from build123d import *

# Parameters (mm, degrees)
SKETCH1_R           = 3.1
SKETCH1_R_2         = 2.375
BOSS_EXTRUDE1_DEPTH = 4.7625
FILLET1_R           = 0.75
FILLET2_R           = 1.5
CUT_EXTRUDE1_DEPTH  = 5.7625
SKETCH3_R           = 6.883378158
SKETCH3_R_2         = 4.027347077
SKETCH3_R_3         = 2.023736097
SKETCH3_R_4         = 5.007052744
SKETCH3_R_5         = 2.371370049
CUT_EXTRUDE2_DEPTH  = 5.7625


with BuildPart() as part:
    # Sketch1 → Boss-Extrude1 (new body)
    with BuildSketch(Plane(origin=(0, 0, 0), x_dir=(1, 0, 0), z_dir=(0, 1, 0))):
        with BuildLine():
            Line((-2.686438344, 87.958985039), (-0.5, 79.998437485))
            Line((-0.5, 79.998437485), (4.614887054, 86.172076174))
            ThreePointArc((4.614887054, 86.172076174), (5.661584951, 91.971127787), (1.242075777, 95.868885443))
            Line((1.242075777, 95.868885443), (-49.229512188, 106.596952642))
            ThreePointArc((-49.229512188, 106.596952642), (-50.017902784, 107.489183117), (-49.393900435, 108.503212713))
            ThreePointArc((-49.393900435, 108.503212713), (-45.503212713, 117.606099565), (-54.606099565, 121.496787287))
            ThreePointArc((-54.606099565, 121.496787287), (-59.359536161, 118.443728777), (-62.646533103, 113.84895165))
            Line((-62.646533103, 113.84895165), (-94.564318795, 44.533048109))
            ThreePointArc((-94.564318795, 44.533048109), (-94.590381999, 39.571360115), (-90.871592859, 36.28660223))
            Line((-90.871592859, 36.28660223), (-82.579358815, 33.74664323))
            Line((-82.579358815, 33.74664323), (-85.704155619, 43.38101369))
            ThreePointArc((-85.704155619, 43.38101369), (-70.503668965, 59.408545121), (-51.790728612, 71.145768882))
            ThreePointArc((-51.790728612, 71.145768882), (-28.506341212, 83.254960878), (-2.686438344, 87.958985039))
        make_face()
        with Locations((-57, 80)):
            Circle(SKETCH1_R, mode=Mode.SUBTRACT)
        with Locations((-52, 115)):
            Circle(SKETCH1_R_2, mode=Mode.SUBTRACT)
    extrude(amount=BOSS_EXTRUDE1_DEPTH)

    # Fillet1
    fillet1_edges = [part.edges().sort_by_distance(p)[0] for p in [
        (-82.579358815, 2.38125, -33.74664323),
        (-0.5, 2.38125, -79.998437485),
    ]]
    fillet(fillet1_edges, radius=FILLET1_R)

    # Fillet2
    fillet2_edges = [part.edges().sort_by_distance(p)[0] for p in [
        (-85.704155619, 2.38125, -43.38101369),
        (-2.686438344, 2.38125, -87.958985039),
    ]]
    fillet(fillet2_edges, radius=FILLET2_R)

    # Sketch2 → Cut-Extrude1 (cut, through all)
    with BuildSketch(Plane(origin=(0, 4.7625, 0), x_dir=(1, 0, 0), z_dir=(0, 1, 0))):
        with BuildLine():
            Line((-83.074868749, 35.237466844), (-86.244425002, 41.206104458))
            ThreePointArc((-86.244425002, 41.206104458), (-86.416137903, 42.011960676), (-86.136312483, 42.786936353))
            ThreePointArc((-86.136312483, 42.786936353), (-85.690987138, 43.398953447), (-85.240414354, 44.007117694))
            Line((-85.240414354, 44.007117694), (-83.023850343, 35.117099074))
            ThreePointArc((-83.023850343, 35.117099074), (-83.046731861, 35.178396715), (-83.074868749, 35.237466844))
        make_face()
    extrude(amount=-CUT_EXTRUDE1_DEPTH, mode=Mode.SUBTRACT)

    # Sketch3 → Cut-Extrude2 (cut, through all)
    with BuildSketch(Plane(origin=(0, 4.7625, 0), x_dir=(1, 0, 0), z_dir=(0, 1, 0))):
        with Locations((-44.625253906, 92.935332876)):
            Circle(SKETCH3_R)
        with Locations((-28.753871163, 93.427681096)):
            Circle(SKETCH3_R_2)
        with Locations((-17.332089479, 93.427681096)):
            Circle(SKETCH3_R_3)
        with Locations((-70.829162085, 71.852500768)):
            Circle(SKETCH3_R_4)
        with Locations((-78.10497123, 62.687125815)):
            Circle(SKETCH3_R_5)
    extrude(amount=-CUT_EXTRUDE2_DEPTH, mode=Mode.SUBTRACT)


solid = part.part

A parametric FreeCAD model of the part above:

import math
import FreeCAD as App
import Part
import Sketcher
Q = App.Units.Quantity


def edges_at(feature, points):
    """Names of the edges that pass closest to the given points."""
    edges = feature.Shape.Edges
    near = lambda p: min(range(len(edges)), key=lambda i: edges[i].distToShape(Part.Vertex(*p))[0])
    return sorted({f"Edge{near(p) + 1}" for p in points})

doc = App.newDocument("Part")
params = doc.addObject("Spreadsheet::Sheet", "Params")
for row, (alias, value) in enumerate([
    ("sketch1_radius", "6 mm"),
    ("sketch1_radius2", "1 mm"),
    ("sketch1_radius3", "7 mm"),
    ("sketch1_radius4", "88 mm"),
    ("sketch1_diameter", "6.2 mm"),
    ("pad1_length", "4.7625 mm"),
    ("fillet_radius", "0.75 mm"),
    ("fillet2_radius", "1.5 mm"),
    ("sketch2_radius", "1.5 mm"),
    ("sketch2_radius2", "0.75 mm"),
], start=1):
    params.set(f"A{row}", alias)
    params.set(f"B{row}", "=" + value)
    params.setAlias(f"B{row}", alias)

body = doc.addObject("PartDesign::Body", "Body")

# Sketch on XZ plane
sketch1 = body.newObject("Sketcher::SketchObject", "Sketch")
sketch1.AttachmentSupport = (doc.getObject("XZ_Plane"), [""])
sketch1.MapMode = "FlatFace"
sketch1.addGeometry([
    Part.LineSegment(App.Vector(-2.686438, -87.958985, 0), App.Vector(-0.5, -79.998437, 0)),  # 0
    Part.LineSegment(App.Vector(-0.5, -79.998437, 0), App.Vector(4.614887, -86.172076, 0)),  # 1
    Part.ArcOfCircle(Part.Circle(App.Vector(-0.005394, -90, 0), App.Vector(0, 0, 1), 6), math.radians(-78), math.radians(39.641899)),  # 2
    Part.LineSegment(App.Vector(1.242076, -95.868885, 0), App.Vector(-49.229512, -106.596953, 0)),  # 3
    Part.ArcOfCircle(Part.Circle(App.Vector(-49.0216, -107.5751, 0), App.Vector(0, 0, 1), 1), math.radians(102), math.radians(248.142469)),  # 4
    Part.ArcOfCircle(Part.Circle(App.Vector(-52, -115, 0), App.Vector(0, 0, 1), 7), math.radians(-111.857531), math.radians(68.142469)),  # 5
    Part.ArcOfCircle(Part.Circle(App.Vector(-49.0216, -107.5751, 0), App.Vector(0, 0, 1), 15), math.radians(-155.275422), math.radians(-111.857531)),  # 6
    Part.LineSegment(App.Vector(-62.646533, -113.848952, 0), App.Vector(-94.564319, -44.533048, 0)),  # 7
    Part.ArcOfCircle(Part.Circle(App.Vector(-89.114346, -42.023508, 0), App.Vector(0, 0, 1), 6), math.radians(107.030128), math.radians(204.724578)),  # 8
    Part.LineSegment(App.Vector(-90.871593, -36.286602, 0), App.Vector(-82.579359, -33.746643, 0)),  # 9
    Part.LineSegment(App.Vector(-82.579359, -33.746643, 0), App.Vector(-85.704156, -43.381014, 0)),  # 10
    Part.ArcOfCircle(Part.Circle(App.Vector(-14.757812, 8.682566, 0), App.Vector(0, 0, 1), 88), math.radians(-143.727123), math.radians(-114.886911)),  # 11
    Part.ArcOfCircle(Part.Circle(App.Vector(0, 0, 0), App.Vector(0, 0, 1), 88), math.radians(-126.052833), math.radians(-91.749381)),  # 12
    Part.Circle(App.Vector(-57, -80, 0), App.Vector(0, 0, 1), 3.1),  # 13
    Part.Circle(App.Vector(-52, -115, 0), App.Vector(0, 0, 1), 2.375),  # 14
], False)
sketch1.addConstraint([
    Sketcher.Constraint("Coincident", 0, 2, 1, 1),
    Sketcher.Constraint("Tangent", 1, 2, 2, 2),
    Sketcher.Constraint("Tangent", 2, 1, 3, 1),
    Sketcher.Constraint("Tangent", 3, 2, 4, 1),
    Sketcher.Constraint("Tangent", 4, 2, 5, 2),
    Sketcher.Constraint("Tangent", 5, 1, 6, 2),
    Sketcher.Constraint("Tangent", 6, 1, 7, 1),
    Sketcher.Constraint("Tangent", 7, 2, 8, 2),
    Sketcher.Constraint("Tangent", 8, 1, 9, 1),
    Sketcher.Constraint("Coincident", 9, 2, 10, 1),
    Sketcher.Constraint("Coincident", 10, 2, 11, 1),
    Sketcher.Constraint("Coincident", 11, 2, 12, 1),
    Sketcher.Constraint("Coincident", 12, 2, 0, 1),
    Sketcher.Constraint("Coincident", 12, 3, -1, 1),
    Sketcher.Constraint("Coincident", 6, 3, 4, 3),
    Sketcher.Constraint("Coincident", 14, 3, 5, 3),
    Sketcher.Constraint("Equal", 2, 8),
    Sketcher.Constraint("Equal", 11, 12),
    Sketcher.Constraint("Radius", 2, Q("6 mm")),
    Sketcher.Constraint("Radius", 4, Q("1 mm")),
    Sketcher.Constraint("Radius", 5, Q("7 mm")),
    Sketcher.Constraint("Radius", 11, Q("88 mm")),
    Sketcher.Constraint("Diameter", 13, Q("6.2 mm")),
    Sketcher.Constraint("Diameter", 14, Q("4.75 mm")),
    Sketcher.Constraint("Angle", 3, Q("-168 deg")),
    Sketcher.Constraint("DistanceY", 2, 3, -1, 1, Q("90 mm")),
    Sketcher.Constraint("DistanceX", 5, 3, -1, 1, Q("52 mm")),
    Sketcher.Constraint("DistanceY", 5, 3, -1, 1, Q("115 mm")),
    Sketcher.Constraint("DistanceX", 13, 3, -1, 1, Q("57 mm")),
    Sketcher.Constraint("DistanceY", 13, 3, -1, 1, Q("80 mm")),
    Sketcher.Constraint("DistanceX", 0, 2, -1, 1, Q("0.5 mm")),
    Sketcher.Constraint("DistanceX", 4, 3, -1, 1, Q("49.0216 mm")),
    Sketcher.Constraint("DistanceY", 2, 1, 12, 2, Q("7.9099 mm")),
    Sketcher.Constraint("Distance", 0, Q("8.255352 mm")),
    Sketcher.Constraint("DistanceY", 6, 1, -1, 1, Q("113.848952 mm")),
    Sketcher.Constraint("DistanceX", 7, 2, -1, 1, Q("94.564319 mm")),
    Sketcher.Constraint("DistanceX", 9, 2, -1, 1, Q("82.579359 mm")),
    Sketcher.Constraint("DistanceX", 11, 2, -1, 1, Q("51.790729 mm")),
    Sketcher.Constraint("DistanceX", 4, 3, 11, 3, Q("34.263788 mm")),
    Sketcher.Constraint("DistanceX", 8, 1, 3, 2, Q("41.642081 mm")),
    Sketcher.Constraint("DistanceX", 8, 3, 10, 2, Q("3.41019 mm")),
])
sketch1.setExpression("Constraints[18]", "Params.sketch1_radius")
sketch1.setExpression("Constraints[19]", "Params.sketch1_radius2")
sketch1.setExpression("Constraints[20]", "Params.sketch1_radius3")
sketch1.setExpression("Constraints[21]", "Params.sketch1_radius4")
sketch1.setExpression("Constraints[22]", "Params.sketch1_diameter")
pad1 = body.newObject("PartDesign::Pad", "Pad")
pad1.Profile = sketch1
pad1.setExpression("Length", "Params.pad1_length")
pad1.Reversed = True
doc.recompute()

fillet = body.newObject("PartDesign::Fillet", "Fillet")
fillet.Base = (pad1, edges_at(pad1, [(-82.579, 2.381, -33.747), (-0.5, 2.381, -79.998)]))
fillet.setExpression("Radius", "Params.fillet_radius")
doc.recompute()

fillet2 = body.newObject("PartDesign::Fillet", "Fillet001")
fillet2.Base = (fillet, edges_at(fillet, [(-85.704, 2.381, -43.381), (-2.686, 2.381, -87.959)]))
fillet2.setExpression("Radius", "Params.fillet2_radius")

# Sketch on XZ plane
sketch2 = body.newObject("Sketcher::SketchObject", "Sketch001")
sketch2.AttachmentSupport = (doc.getObject("XZ_Plane"), [""])
sketch2.MapMode = "FlatFace"
sketch2.AttachmentOffset = App.Placement(App.Vector(0, 0, -4.7625), App.Rotation())
sketch2.addGeometry([
    Part.LineSegment(App.Vector(-86.244425, -41.206104, 0), App.Vector(-83.074869, -35.237467, 0)),  # 0
    Part.ArcOfCircle(Part.Circle(App.Vector(-83.737265, -34.885711, 0), App.Vector(0, 0, 1), 0.75), math.radians(-27.969872), math.radians(-17.969872)),  # 1
    Part.LineSegment(App.Vector(-83.02385, -35.117099, 0), App.Vector(-85.240414, -44.007118, 0)),  # 2
    Part.ArcOfCircle(Part.Circle(App.Vector(-14.757818, 8.682562, 0), App.Vector(0, 0, 1), 87.999992), math.radians(-144.205437), math.radians(-143.219831)),  # 3
    Part.ArcOfCircle(Part.Circle(App.Vector(-84.919634, -41.909615, 0), App.Vector(0, 0, 1), 1.5), math.radians(152.030128), math.radians(215.794563)),  # 4
], False)
sketch2.addConstraint([
    Sketcher.Constraint("Tangent", 0, 2, 1, 1),
    Sketcher.Constraint("Coincident", 1, 2, 2, 1),
    Sketcher.Constraint("Coincident", 2, 2, 3, 2),
    Sketcher.Constraint("Tangent", 3, 1, 4, 2),
    Sketcher.Constraint("Tangent", 4, 1, 0, 1),
    Sketcher.Constraint("Radius", 4, Q("1.5 mm")),
    Sketcher.Constraint("Radius", 1, Q("0.75 mm")),
    Sketcher.Constraint("Radius", 3, Q("87.999992 mm")),
    Sketcher.Constraint("DistanceY", 1, 2, -1, 1, Q("35.117099 mm")),
    Sketcher.Constraint("DistanceX", 3, 1, 2, 2, Q("0.895898 mm")),
    Sketcher.Constraint("Distance", 0, Q("6.758012 mm")),
    Sketcher.Constraint("DistanceY", 1, 3, -1, 1, Q("34.885711 mm")),
    Sketcher.Constraint("DistanceX", 3, 3, -1, 1, Q("14.757818 mm")),
    Sketcher.Constraint("DistanceY", -1, 1, 3, 3, Q("8.682562 mm")),
    Sketcher.Constraint("DistanceX", 0, 2, -1, 1, Q("83.074869 mm")),
])
sketch2.setExpression("Constraints[5]", "Params.sketch2_radius")
sketch2.setExpression("Constraints[6]", "Params.sketch2_radius2")
pocket1 = body.newObject("PartDesign::Pocket", "Pocket")
pocket1.Profile = sketch2
pocket1.Type = "ThroughAll"
pocket1.Reversed = True

# Sketch on XZ plane
sketch3 = body.newObject("Sketcher::SketchObject", "Sketch002")
sketch3.AttachmentSupport = (doc.getObject("XZ_Plane"), [""])
sketch3.MapMode = "FlatFace"
sketch3.AttachmentOffset = App.Placement(App.Vector(0, 0, -4.7625), App.Rotation())
sketch3.addGeometry([
    Part.Circle(App.Vector(-44.625254, -92.935333, 0), App.Vector(0, 0, 1), 6.883378),  # 0
    Part.Circle(App.Vector(-28.753871, -93.427681, 0), App.Vector(0, 0, 1), 4.027347),  # 1
    Part.Circle(App.Vector(-17.332089, -93.427681, 0), App.Vector(0, 0, 1), 2.023736),  # 2
    Part.Circle(App.Vector(-70.829162, -71.852501, 0), App.Vector(0, 0, 1), 5.007053),  # 3
    Part.Circle(App.Vector(-78.104971, -62.687126, 0), App.Vector(0, 0, 1), 2.37137),  # 4
], False)
sketch3.addConstraint([
    Sketcher.Constraint("Horizontal", 1, 3, 2, 3),
    Sketcher.Constraint("Diameter", 4, Q("4.74274 mm")),
    Sketcher.Constraint("Diameter", 0, Q("13.766756 mm")),
    Sketcher.Constraint("Diameter", 1, Q("8.054694 mm")),
    Sketcher.Constraint("Diameter", 2, Q("4.047472 mm")),
    Sketcher.Constraint("Diameter", 3, Q("10.014105 mm")),
    Sketcher.Constraint("DistanceY", 3, 3, -1, 1, Q("71.852501 mm")),
    Sketcher.Constraint("DistanceX", 4, 3, 1, 3, Q("49.3511 mm")),
    Sketcher.Constraint("DistanceX", 1, 3, -1, 1, Q("28.753871 mm")),
    Sketcher.Constraint("DistanceY", 1, 3, -1, 1, Q("93.427681 mm")),
    Sketcher.Constraint("DistanceX", 2, 3, -1, 1, Q("17.332089 mm")),
    Sketcher.Constraint("DistanceY", 1, 3, 0, 3, Q("0.492348 mm")),
    Sketcher.Constraint("DistanceX", 3, 3, 0, 3, Q("26.203908 mm")),
    Sketcher.Constraint("DistanceX", 3, 3, 1, 3, Q("42.075291 mm")),
    Sketcher.Constraint("DistanceY", 4, 3, -1, 1, Q("62.687126 mm")),
])
pocket2 = body.newObject("PartDesign::Pocket", "Pocket001")
pocket2.Profile = sketch3
pocket2.Type = "ThroughAll"
pocket2.Reversed = True

doc.recompute()
